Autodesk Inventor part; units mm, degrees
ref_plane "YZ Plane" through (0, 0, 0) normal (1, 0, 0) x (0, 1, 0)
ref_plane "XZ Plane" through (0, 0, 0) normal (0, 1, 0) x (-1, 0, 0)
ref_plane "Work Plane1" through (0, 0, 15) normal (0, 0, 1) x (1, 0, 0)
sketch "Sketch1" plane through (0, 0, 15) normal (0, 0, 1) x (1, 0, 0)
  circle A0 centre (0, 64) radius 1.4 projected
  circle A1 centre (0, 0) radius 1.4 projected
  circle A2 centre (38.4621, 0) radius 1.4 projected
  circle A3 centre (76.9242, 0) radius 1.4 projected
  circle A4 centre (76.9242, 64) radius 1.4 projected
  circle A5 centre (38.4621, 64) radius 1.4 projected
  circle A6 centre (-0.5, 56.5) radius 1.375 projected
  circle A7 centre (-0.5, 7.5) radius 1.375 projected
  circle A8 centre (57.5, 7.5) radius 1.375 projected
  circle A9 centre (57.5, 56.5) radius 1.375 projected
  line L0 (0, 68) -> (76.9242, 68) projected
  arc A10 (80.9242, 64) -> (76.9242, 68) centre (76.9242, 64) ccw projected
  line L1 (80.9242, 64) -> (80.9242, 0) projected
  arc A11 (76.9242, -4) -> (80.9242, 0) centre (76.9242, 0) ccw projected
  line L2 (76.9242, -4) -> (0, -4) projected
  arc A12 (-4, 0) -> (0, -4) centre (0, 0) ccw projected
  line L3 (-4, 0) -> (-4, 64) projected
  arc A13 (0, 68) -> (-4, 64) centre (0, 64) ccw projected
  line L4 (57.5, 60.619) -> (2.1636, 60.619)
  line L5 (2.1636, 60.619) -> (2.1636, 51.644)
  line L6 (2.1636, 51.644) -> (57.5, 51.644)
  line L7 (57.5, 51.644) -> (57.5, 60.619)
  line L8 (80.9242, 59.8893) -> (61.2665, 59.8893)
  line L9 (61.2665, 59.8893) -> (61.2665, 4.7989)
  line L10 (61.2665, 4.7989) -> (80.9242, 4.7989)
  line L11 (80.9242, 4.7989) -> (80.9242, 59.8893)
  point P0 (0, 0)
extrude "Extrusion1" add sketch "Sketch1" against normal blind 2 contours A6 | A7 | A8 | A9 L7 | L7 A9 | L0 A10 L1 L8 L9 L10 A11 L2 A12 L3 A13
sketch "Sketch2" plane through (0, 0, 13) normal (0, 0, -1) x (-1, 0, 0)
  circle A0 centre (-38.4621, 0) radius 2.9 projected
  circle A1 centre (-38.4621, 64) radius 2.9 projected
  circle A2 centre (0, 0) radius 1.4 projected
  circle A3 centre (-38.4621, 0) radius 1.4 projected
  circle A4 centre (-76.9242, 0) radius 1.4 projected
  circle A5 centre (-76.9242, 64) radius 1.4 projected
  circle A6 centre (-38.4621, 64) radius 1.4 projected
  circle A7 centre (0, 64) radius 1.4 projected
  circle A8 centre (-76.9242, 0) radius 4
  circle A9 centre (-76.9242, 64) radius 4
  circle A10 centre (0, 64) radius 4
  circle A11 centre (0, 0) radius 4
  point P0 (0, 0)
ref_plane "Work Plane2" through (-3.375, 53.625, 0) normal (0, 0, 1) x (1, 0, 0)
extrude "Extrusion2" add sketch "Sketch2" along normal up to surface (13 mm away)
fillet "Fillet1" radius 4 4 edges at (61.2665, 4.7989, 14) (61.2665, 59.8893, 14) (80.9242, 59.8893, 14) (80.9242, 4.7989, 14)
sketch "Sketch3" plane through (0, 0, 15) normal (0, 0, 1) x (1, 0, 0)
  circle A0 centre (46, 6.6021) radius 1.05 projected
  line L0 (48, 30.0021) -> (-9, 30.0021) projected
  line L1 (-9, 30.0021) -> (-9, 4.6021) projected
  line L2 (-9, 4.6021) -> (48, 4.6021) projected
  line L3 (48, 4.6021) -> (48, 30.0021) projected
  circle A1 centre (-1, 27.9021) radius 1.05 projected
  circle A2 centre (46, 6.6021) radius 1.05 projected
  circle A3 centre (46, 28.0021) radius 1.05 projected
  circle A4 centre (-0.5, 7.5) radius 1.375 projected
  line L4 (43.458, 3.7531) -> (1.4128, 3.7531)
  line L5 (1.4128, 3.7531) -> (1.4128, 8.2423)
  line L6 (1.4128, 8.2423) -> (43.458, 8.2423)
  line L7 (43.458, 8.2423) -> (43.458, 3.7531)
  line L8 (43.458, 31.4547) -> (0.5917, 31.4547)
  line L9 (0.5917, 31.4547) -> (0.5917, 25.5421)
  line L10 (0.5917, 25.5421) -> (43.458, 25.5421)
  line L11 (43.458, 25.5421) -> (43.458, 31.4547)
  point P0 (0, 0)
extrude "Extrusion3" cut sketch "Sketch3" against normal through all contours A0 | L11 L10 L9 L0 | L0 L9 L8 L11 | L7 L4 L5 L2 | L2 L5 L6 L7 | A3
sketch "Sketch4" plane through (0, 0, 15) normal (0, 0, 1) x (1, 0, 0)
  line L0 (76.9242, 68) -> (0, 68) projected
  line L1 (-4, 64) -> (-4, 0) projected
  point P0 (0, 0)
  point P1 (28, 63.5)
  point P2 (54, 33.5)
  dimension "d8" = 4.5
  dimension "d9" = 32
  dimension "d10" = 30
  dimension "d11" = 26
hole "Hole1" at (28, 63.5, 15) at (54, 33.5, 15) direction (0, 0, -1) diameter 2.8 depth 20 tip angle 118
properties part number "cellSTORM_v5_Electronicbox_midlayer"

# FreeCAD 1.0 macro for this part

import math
import FreeCAD as App
import Part
import Sketcher

V = App.Vector


def edges_at(feature, points):
    """Names of the edges that pass closest to the given points."""
    edges = feature.Shape.Edges
    near = lambda p: min(range(len(edges)), key=lambda i: edges[i].distToShape(Part.Vertex(*p))[0])
    return sorted({f"Edge{near(p) + 1}" for p in points})


def add_polygon(sketch, points):
    """Adds a closed chain of lines whose ends are joined by coincident constraints."""
    first, n = sketch.GeometryCount, len(points)
    for a, b in zip(points, points[1:] + points[:1]):
        sketch.addGeometry(Part.LineSegment(App.Vector(*a, 0), App.Vector(*b, 0)), False)
    for i in range(n):
        sketch.addConstraint(Sketcher.Constraint("Coincident", first + i, 2, first + (i + 1) % n, 1))

doc = App.newDocument("Part")
body = doc.addObject("PartDesign::Body", "Body")

sketch1 = body.newObject("Sketcher::SketchObject", "Sketch")
sketch1.AttachmentSupport = (doc.getObject("XY_Plane"), [""])
sketch1.MapMode = "FlatFace"
sketch1.AttachmentOffset = App.Placement(V(0, 0, 15), App.Rotation())
sketch1.addGeometry([
    Part.LineSegment(V(76.9242, 68, 0), V(0, 68, 0)),
    Part.ArcOfCircle(Part.Circle(V(0, 64, 0), V(0, 0, 1), 4), math.radians(90), math.radians(180)),
    Part.LineSegment(V(-4, 64, 0), V(-4, 0, 0)),
    Part.ArcOfCircle(Part.Circle(V(0, 0, 0), V(0, 0, 1), 4), math.radians(180), math.radians(270)),
    Part.LineSegment(V(0, -4, 0), V(76.9242, -4, 0)),
    Part.ArcOfCircle(Part.Circle(V(76.9242, 0, 0), V(0, 0, 1), 4), math.radians(-90), math.radians(0)),
    Part.LineSegment(V(80.9242, 0, 0), V(80.9242, 4.7989, 0)),
    Part.LineSegment(V(80.9242, 4.7989, 0), V(61.2665, 4.7989, 0)),
    Part.LineSegment(V(61.2665, 4.7989, 0), V(61.2665, 59.8893, 0)),
    Part.LineSegment(V(61.2665, 59.8893, 0), V(80.9242, 59.8893, 0)),
    Part.LineSegment(V(80.9242, 59.8893, 0), V(80.9242, 64, 0)),
    Part.ArcOfCircle(Part.Circle(V(76.9242, 64, 0), V(0, 0, 1), 4), math.radians(0), math.radians(90)),
    Part.Circle(V(0, 0, 0), V(0, 0, 1), 1.4),
    Part.Circle(V(38.4621, 0, 0), V(0, 0, 1), 1.4),
    Part.Circle(V(76.9242, 0, 0), V(0, 0, 1), 1.4),
    Part.Circle(V(76.9242, 64, 0), V(0, 0, 1), 1.4),
    Part.Circle(V(0, 64, 0), V(0, 0, 1), 1.4),
    Part.LineSegment(V(57.5, 60.619, 0), V(57.5, 57.875, 0)),
    Part.ArcOfCircle(Part.Circle(V(57.5, 56.5, 0), V(0, 0, 1), 1.375), math.radians(90), math.radians(270)),
    Part.LineSegment(V(57.5, 55.125, 0), V(57.5, 51.644, 0)),
    Part.LineSegment(V(57.5, 51.644, 0), V(2.1636, 51.644, 0)),
    Part.LineSegment(V(2.1636, 51.644, 0), V(2.1636, 60.619, 0)),
    Part.LineSegment(V(2.1636, 60.619, 0), V(57.5, 60.619, 0)),
    Part.Circle(V(38.4621, 64, 0), V(0, 0, 1), 1.4),
], False)
sketch1.addConstraint([
    Sketcher.Constraint("Tangent", 0, 2, 1, 1),
    Sketcher.Constraint("Tangent", 1, 2, 2, 1),
    Sketcher.Constraint("Tangent", 2, 2, 3, 1),
    Sketcher.Constraint("Tangent", 3, 2, 4, 1),
    Sketcher.Constraint("Tangent", 4, 2, 5, 1),
    Sketcher.Constraint("Tangent", 5, 2, 6, 1),
    Sketcher.Constraint("Coincident", 6, 2, 7, 1),
    Sketcher.Constraint("Coincident", 7, 2, 8, 1),
    Sketcher.Constraint("Coincident", 8, 2, 9, 1),
    Sketcher.Constraint("Coincident", 9, 2, 10, 1),
    Sketcher.Constraint("Tangent", 10, 2, 11, 1),
    Sketcher.Constraint("Tangent", 11, 2, 0, 1),
    Sketcher.Constraint("Coincident", 17, 2, 18, 1),
    Sketcher.Constraint("Coincident", 18, 2, 19, 1),
    Sketcher.Constraint("Coincident", 19, 2, 20, 1),
    Sketcher.Constraint("Coincident", 20, 2, 21, 1),
    Sketcher.Constraint("Coincident", 21, 2, 22, 1),
    Sketcher.Constraint("Coincident", 22, 2, 17, 1),
    Sketcher.Constraint("Horizontal", 0),
    Sketcher.Constraint("Vertical", 2),
    Sketcher.Constraint("Horizontal", 4),
    Sketcher.Constraint("Vertical", 6),
    Sketcher.Constraint("Horizontal", 7),
    Sketcher.Constraint("Vertical", 8),
    Sketcher.Constraint("Horizontal", 9),
    Sketcher.Constraint("Vertical", 10),
    Sketcher.Constraint("Vertical", 17),
    Sketcher.Constraint("Vertical", 19),
    Sketcher.Constraint("Horizontal", 20),
    Sketcher.Constraint("Vertical", 21),
    Sketcher.Constraint("Horizontal", 22),
    Sketcher.Constraint("Coincident", 3, 3, -1, 1),
    Sketcher.Constraint("Coincident", 12, 3, -1, 1),
    Sketcher.Constraint("Coincident", 14, 3, 5, 3),
    Sketcher.Constraint("Coincident", 15, 3, 11, 3),
    Sketcher.Constraint("Coincident", 16, 3, 1, 3),
    Sketcher.Constraint("Equal", 1, 3),
    Sketcher.Constraint("Equal", 3, 5),
    Sketcher.Constraint("Equal", 5, 11),
    Sketcher.Constraint("Equal", 12, 13),
    Sketcher.Constraint("Equal", 13, 14),
    Sketcher.Constraint("Equal", 14, 15),
    Sketcher.Constraint("Equal", 15, 16),
    Sketcher.Constraint("Equal", 16, 23),
    Sketcher.Constraint("PointOnObject", 13, 3, -1),
    Sketcher.Constraint("Horizontal", 16, 3, 23, 3),
    Sketcher.Constraint("Vertical", 5, 3, 11, 3),
    Sketcher.Constraint("Vertical", 13, 3, 23, 3),
    Sketcher.Constraint("Vertical", 18, 3, 17, 2),
    Sketcher.Constraint("Vertical", 17, 2, 18, 2),
    Sketcher.Constraint("Radius", 1, 4.0),
    Sketcher.Constraint("Diameter", 12, 2.8),
    Sketcher.Constraint("DistanceY", 2, 2, 2, 1, 64.0),
    Sketcher.Constraint("Radius", 18, 1.375),
    Sketcher.Constraint("DistanceX", -1, 1, 18, 3, 57.5),
    Sketcher.Constraint("DistanceY", -1, 1, 18, 3, 56.5),
    Sketcher.Constraint("DistanceY", 6, 1, 6, 2, 4.799),
    Sketcher.Constraint("DistanceY", 17, 2, 17, 1, 2.744),
    Sketcher.Constraint("DistanceY", 19, 2, 19, 1, 3.481),
    Sketcher.Constraint("DistanceX", 0, 2, 0, 1, 76.9242),
    Sketcher.Constraint("DistanceX", 7, 2, 7, 1, 19.6577),
    Sketcher.Constraint("DistanceX", 20, 2, 20, 1, 55.3364),
    Sketcher.Constraint("DistanceY", 8, 1, 8, 2, 55.0904),
    Sketcher.Constraint("DistanceX", -1, 1, 13, 3, 38.462),
])
pad1 = body.newObject("PartDesign::Pad", "Pad")
pad1.Profile = sketch1
pad1.Length = 2
pad1.Reversed = True

sketch2 = body.newObject("Sketcher::SketchObject", "Sketch001")
sketch2.AttachmentSupport = (doc.getObject("XY_Plane"), [""])
sketch2.MapMode = "FlatFace"
sketch2.AttachmentOffset = App.Placement(V(0, 0, 13), App.Rotation())
sketch2.addGeometry([
    Part.Circle(V(38.4621, 0, 0), V(0, 0, 1), 2.9),
    Part.Circle(V(38.4621, 0, 0), V(0, 0, 1), 1.4),
    Part.Circle(V(38.4621, 64, 0), V(0, 0, 1), 2.9),
    Part.Circle(V(38.4621, 64, 0), V(0, 0, 1), 1.4),
    Part.Circle(V(76.9242, 0, 0), V(0, 0, 1), 4),
    Part.Circle(V(76.9242, 0, 0), V(0, 0, 1), 1.4),
    Part.Circle(V(76.9242, 64, 0), V(0, 0, 1), 4),
    Part.Circle(V(76.9242, 64, 0), V(0, 0, 1), 1.4),
    Part.Circle(V(0, 64, 0), V(0, 0, 1), 4),
    Part.Circle(V(0, 64, 0), V(0, 0, 1), 1.4),
    Part.Circle(V(0, 0, 0), V(0, 0, 1), 4),
    Part.Circle(V(0, 0, 0), V(0, 0, 1), 1.4),
], False)
sketch2.addConstraint([
    Sketcher.Constraint("Coincident", 10, 3, -1, 1),
    Sketcher.Constraint("Coincident", 11, 3, -1, 1),
    Sketcher.Constraint("Coincident", 1, 3, 0, 3),
    Sketcher.Constraint("Coincident", 3, 3, 2, 3),
    Sketcher.Constraint("Coincident", 5, 3, 4, 3),
    Sketcher.Constraint("Coincident", 7, 3, 6, 3),
    Sketcher.Constraint("Coincident", 9, 3, 8, 3),
    Sketcher.Constraint("Equal", 0, 2),
    Sketcher.Constraint("Equal", 1, 3),
    Sketcher.Constraint("Equal", 3, 5),
    Sketcher.Constraint("Equal", 4, 6),
    Sketcher.Constraint("Equal", 5, 7),
    Sketcher.Constraint("Equal", 6, 8),
    Sketcher.Constraint("Equal", 7, 9),
    Sketcher.Constraint("Equal", 8, 10),
    Sketcher.Constraint("Equal", 9, 11),
    Sketcher.Constraint("PointOnObject", 0, 3, -1),
    Sketcher.Constraint("PointOnObject", 4, 3, -1),
    Sketcher.Constraint("PointOnObject", 8, 3, -2),
    Sketcher.Constraint("Horizontal", 3, 3, 6, 3),
    Sketcher.Constraint("Horizontal", 7, 3, 8, 3),
    Sketcher.Constraint("Vertical", 1, 3, 2, 3),
    Sketcher.Constraint("Vertical", 5, 3, 6, 3),
    Sketcher.Constraint("Diameter", 4, 8.0),
    Sketcher.Constraint("Diameter", 0, 5.8),
    Sketcher.Constraint("Diameter", 1, 2.8),
    Sketcher.Constraint("DistanceY", -1, 1, 2, 3, 64.0),
    Sketcher.Constraint("DistanceX", -1, 1, 0, 3, 38.462),
    Sketcher.Constraint("DistanceX", 0, 3, 4, 3, 38.462),
])
pad2 = body.newObject("PartDesign::Pad", "Pad001")
pad2.Profile = sketch2
pad2.Length = 13
pad2.Reversed = True
doc.recompute()

fillet = body.newObject("PartDesign::Fillet", "Fillet")
fillet.Base = (pad2, edges_at(pad2, [
    (61.267, 4.799, 14),
    (61.267, 59.889, 14),
    (80.924, 59.889, 14),
    (80.924, 4.799, 14),
]))
fillet.Radius = 4

sketch3 = body.newObject("Sketcher::SketchObject", "Sketch002")
sketch3.AttachmentSupport = (doc.getObject("XY_Plane"), [""])
sketch3.MapMode = "FlatFace"
sketch3.AttachmentOffset = App.Placement(V(0, 0, 15), App.Rotation())
sketch3.addGeometry(Part.Circle(V(46, 6.6021, 0), V(0, 0, 1), 1.05), False)
add_polygon(sketch3, [(43.458, 25.5421), (43.458, 31.4547), (0.5917, 31.4547), (0.5917, 25.5421)])
add_polygon(sketch3, [(43.458, 3.7531), (43.458, 8.2423), (1.4128, 8.2423), (1.4128, 3.7531)])
sketch3.addGeometry(Part.Circle(V(46, 28.0021, 0), V(0, 0, 1), 1.05), False)
sketch3.addConstraint([
    Sketcher.Constraint("Vertical", 1),
    Sketcher.Constraint("Horizontal", 2),
    Sketcher.Constraint("Vertical", 3),
    Sketcher.Constraint("Horizontal", 4),
    Sketcher.Constraint("Vertical", 5),
    Sketcher.Constraint("Horizontal", 6),
    Sketcher.Constraint("Vertical", 7),
    Sketcher.Constraint("Horizontal", 8),
    Sketcher.Constraint("Equal", 0, 9),
    Sketcher.Constraint("Vertical", 0, 3, 9, 3),
    Sketcher.Constraint("Vertical", 4, 2, 5, 2),
    Sketcher.Constraint("Diameter", 0, 2.1),
    Sketcher.Constraint("DistanceX", -1, 1, 0, 3, 46.0),
    Sketcher.Constraint("DistanceY", 0, 3, 9, 3, 21.4),
    Sketcher.Constraint("DistanceY", 3, 2, 9, 3, 2.46),
    Sketcher.Constraint("DistanceX", 2, 2, 2, 1, 42.8663),
    Sketcher.Constraint("DistanceX", 6, 2, 6, 1, 42.0452),
    Sketcher.Constraint("DistanceY", 1, 1, 1, 2, 5.9126),
    Sketcher.Constraint("DistanceY", 5, 1, 5, 2, 4.4892),
    Sketcher.Constraint("DistanceY", -1, 1, 0, 3, 6.602),
    Sketcher.Constraint("DistanceX", -1, 1, 1, 2, 43.458),
    Sketcher.Constraint("DistanceY", -1, 1, 7, 2, 3.753),
])
pocket1 = body.newObject("PartDesign::Pocket", "Pocket")
pocket1.Profile = sketch3
pocket1.Type = "ThroughAll"

sketch4 = body.newObject("Sketcher::SketchObject", "Sketch003")
sketch4.AttachmentSupport = (doc.getObject("XY_Plane"), [""])
sketch4.MapMode = "FlatFace"
sketch4.AttachmentOffset = App.Placement(V(0, 0, 15), App.Rotation())
sketch4.addGeometry([
    Part.Circle(V(28, 63.5, 0), V(0, 0, 1), 1.4),
    Part.Circle(V(54, 33.5, 0), V(0, 0, 1), 1.4),
], False)
sketch4.addConstraint([
    Sketcher.Constraint("Equal", 0, 1),
    Sketcher.Constraint("Diameter", 0, 2.8),
    Sketcher.Constraint("DistanceX", -1, 1, 0, 3, 28.0),
    Sketcher.Constraint("DistanceX", -1, 1, 1, 3, 54.0),
    Sketcher.Constraint("DistanceY", 1, 3, 0, 3, 30.0),
    Sketcher.Constraint("DistanceY", -1, 1, 0, 3, 63.5),
])
doc.recompute()
hole = body.newObject("PartDesign::Hole", "Hole")
hole.Profile = sketch4
hole.ThreadType = "None"
hole.Diameter = 2.8
hole.DepthType = "Dimension"
hole.Depth = 20
hole.DrillPoint = "Angled"
hole.DrillPointAngle = 118

doc.recompute()
